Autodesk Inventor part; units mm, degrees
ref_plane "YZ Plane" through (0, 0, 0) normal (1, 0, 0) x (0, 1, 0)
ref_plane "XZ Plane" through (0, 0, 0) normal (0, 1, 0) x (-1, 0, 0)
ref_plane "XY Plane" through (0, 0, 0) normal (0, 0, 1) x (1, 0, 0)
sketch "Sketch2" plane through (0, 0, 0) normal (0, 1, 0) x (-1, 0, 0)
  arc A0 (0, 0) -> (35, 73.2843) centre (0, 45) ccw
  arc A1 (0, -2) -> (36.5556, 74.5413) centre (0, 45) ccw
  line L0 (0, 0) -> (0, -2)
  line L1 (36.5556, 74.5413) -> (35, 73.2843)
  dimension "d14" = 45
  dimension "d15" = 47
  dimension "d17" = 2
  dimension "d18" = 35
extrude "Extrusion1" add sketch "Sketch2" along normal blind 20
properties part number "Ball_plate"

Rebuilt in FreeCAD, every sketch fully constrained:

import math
import FreeCAD as App
import Part
import Sketcher
Q = App.Units.Quantity

doc = App.newDocument("Part")
body = doc.addObject("PartDesign::Body", "Body")

# Sketch on XZ plane
sketch1 = body.newObject("Sketcher::SketchObject", "Sketch")
sketch1.AttachmentSupport = (doc.getObject("XZ_Plane"), [""])
sketch1.MapMode = "FlatFace"
sketch1.addGeometry([
    Part.ArcOfCircle(Part.Circle(App.Vector(0, 45, 0), App.Vector(0, 0, 1), 45), math.radians(141), math.radians(270)),
    Part.LineSegment(App.Vector(0, 0, 0), App.Vector(0, -2, 0)),
    Part.ArcOfCircle(Part.Circle(App.Vector(0, 45, 0), App.Vector(0, 0, 1), 47), math.radians(141), math.radians(270)),
    Part.LineSegment(App.Vector(-36.6, 74.5, 0), App.Vector(-35, 73.3, 0)),
], False)
sketch1.addConstraint([
    Sketcher.Constraint("Coincident", 0, 2, 1, 1),
    Sketcher.Constraint("Coincident", 1, 2, 2, 2),
    Sketcher.Constraint("Coincident", 2, 1, 3, 1),
    Sketcher.Constraint("Coincident", 3, 2, 0, 1),
    Sketcher.Constraint("Vertical", 1),
    Sketcher.Constraint("Coincident", 0, 2, -1, 1),
    Sketcher.Constraint("Coincident", 2, 3, 0, 3),
    Sketcher.Constraint("PointOnObject", 0, 3, -2),
    Sketcher.Constraint("Radius", 0, Q("45 mm")),
    Sketcher.Constraint("Radius", 2, Q("47 mm")),
    Sketcher.Constraint("DistanceX", 3, 2, -1, 1, Q("35 mm")),
    Sketcher.Constraint("Angle", 3, Q("-38.94 deg")),
])
pad1 = body.newObject("PartDesign::Pad", "Pad")
pad1.Profile = sketch1
pad1.Length = 20
pad1.Reversed = True

doc.recompute()
